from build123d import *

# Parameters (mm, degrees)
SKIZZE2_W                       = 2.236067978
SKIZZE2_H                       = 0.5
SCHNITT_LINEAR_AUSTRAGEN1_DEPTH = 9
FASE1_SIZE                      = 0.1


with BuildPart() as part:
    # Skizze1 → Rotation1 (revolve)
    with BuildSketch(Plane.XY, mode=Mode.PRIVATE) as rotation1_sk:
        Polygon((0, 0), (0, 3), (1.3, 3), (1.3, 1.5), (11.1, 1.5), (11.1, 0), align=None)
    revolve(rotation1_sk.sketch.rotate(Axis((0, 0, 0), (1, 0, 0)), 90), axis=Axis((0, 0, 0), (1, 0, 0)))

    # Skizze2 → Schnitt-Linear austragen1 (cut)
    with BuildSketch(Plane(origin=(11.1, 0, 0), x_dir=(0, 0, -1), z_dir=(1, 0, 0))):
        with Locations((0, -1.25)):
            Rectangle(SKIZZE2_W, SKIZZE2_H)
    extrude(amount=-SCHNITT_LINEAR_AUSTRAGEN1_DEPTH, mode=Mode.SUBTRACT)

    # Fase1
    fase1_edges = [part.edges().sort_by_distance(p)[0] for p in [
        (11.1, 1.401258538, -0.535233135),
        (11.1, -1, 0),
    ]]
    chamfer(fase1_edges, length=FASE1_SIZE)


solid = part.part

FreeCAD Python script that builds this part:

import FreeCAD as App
import Part
import Sketcher

V = App.Vector
Q = App.Units.Quantity


def edges_at(feature, points):
    """Names of the edges that pass closest to the given points."""
    edges = feature.Shape.Edges
    near = lambda p: min(range(len(edges)), key=lambda i: edges[i].distToShape(Part.Vertex(*p))[0])
    return sorted({f"Edge{near(p) + 1}" for p in points})


def add_polygon(sketch, points):
    """Adds a closed chain of lines whose ends are joined by coincident constraints."""
    first, n = sketch.GeometryCount, len(points)
    for a, b in zip(points, points[1:] + points[:1]):
        sketch.addGeometry(Part.LineSegment(App.Vector(*a, 0), App.Vector(*b, 0)), False)
    for i in range(n):
        sketch.addConstraint(Sketcher.Constraint("Coincident", first + i, 2, first + (i + 1) % n, 1))

doc = App.newDocument("Part")
body = doc.addObject("PartDesign::Body", "Body")

sketch1 = body.newObject("Sketcher::SketchObject", "Sketch")
sketch1.AttachmentSupport = (doc.getObject("XY_Plane"), [""])
sketch1.MapMode = "FlatFace"
add_polygon(sketch1, [(0, 3), (0, 0), (11.1, 0), (11.1, 1.5), (1.3, 1.5), (1.3, 3)])
sketch1.addConstraint(Sketcher.Constraint("Vertical", 0))
sketch1.addConstraint(Sketcher.Constraint("Horizontal", 1))
sketch1.addConstraint(Sketcher.Constraint("Vertical", 2))
sketch1.addConstraint(Sketcher.Constraint("Horizontal", 3))
sketch1.addConstraint(Sketcher.Constraint("Vertical", 4))
sketch1.addConstraint(Sketcher.Constraint("Horizontal", 5))
sketch1.addConstraint(Sketcher.Constraint("Coincident", 0, 2, -1, 1))
sketch1.addConstraint(Sketcher.Constraint("Equal", 2, 4))
sketch1.addConstraint(Sketcher.Constraint("DistanceY", 0, 2, 0, 1, Q("3 mm")))
sketch1.addConstraint(Sketcher.Constraint("DistanceX", 1, 1, 1, 2, Q("11.1 mm")))
sketch1.addConstraint(Sketcher.Constraint("DistanceX", 3, 2, 3, 1, Q("9.8 mm")))
revolution = body.newObject("PartDesign::Revolution", "Revolution")
revolution.Profile = sketch1
revolution.ReferenceAxis = (sketch1, ["H_Axis"])
revolution.Angle = 360

sketch2 = body.newObject("Sketcher::SketchObject", "Sketch001")
sketch2.AttachmentSupport = (doc.getObject("YZ_Plane"), [""])
sketch2.MapMode = "FlatFace"
sketch2.AttachmentOffset = App.Placement(V(0, 0, 11.1), App.Rotation())
add_polygon(sketch2, [(-1, 1.118034), (-1.5, 1.118034), (-1.5, -1.118034), (-1, -1.118034)])
sketch2.addConstraint(Sketcher.Constraint("Horizontal", 0))
sketch2.addConstraint(Sketcher.Constraint("Vertical", 1))
sketch2.addConstraint(Sketcher.Constraint("Horizontal", 2))
sketch2.addConstraint(Sketcher.Constraint("Vertical", 3))
sketch2.addConstraint(Sketcher.Constraint("DistanceX", 0, 2, 0, 1, Q("0.5 mm")))
sketch2.addConstraint(Sketcher.Constraint("DistanceX", 2, 2, -1, 1, Q("1 mm")))
sketch2.addConstraint(Sketcher.Constraint("DistanceY", 1, 2, 1, 1, Q("2.236068 mm")))
sketch2.addConstraint(Sketcher.Constraint("DistanceY", -1, 1, 0, 2, Q("1.118034 mm")))
pocket1 = body.newObject("PartDesign::Pocket", "Pocket")
pocket1.Profile = sketch2
pocket1.Length = 9
doc.recompute()

chamfer = body.newObject("PartDesign::Chamfer", "Chamfer")
chamfer.Base = (pocket1, edges_at(pocket1, [(11.1, 1.401, -0.535), (11.1, -1, 0)]))
chamfer.Size = 0.1

doc.recompute()
